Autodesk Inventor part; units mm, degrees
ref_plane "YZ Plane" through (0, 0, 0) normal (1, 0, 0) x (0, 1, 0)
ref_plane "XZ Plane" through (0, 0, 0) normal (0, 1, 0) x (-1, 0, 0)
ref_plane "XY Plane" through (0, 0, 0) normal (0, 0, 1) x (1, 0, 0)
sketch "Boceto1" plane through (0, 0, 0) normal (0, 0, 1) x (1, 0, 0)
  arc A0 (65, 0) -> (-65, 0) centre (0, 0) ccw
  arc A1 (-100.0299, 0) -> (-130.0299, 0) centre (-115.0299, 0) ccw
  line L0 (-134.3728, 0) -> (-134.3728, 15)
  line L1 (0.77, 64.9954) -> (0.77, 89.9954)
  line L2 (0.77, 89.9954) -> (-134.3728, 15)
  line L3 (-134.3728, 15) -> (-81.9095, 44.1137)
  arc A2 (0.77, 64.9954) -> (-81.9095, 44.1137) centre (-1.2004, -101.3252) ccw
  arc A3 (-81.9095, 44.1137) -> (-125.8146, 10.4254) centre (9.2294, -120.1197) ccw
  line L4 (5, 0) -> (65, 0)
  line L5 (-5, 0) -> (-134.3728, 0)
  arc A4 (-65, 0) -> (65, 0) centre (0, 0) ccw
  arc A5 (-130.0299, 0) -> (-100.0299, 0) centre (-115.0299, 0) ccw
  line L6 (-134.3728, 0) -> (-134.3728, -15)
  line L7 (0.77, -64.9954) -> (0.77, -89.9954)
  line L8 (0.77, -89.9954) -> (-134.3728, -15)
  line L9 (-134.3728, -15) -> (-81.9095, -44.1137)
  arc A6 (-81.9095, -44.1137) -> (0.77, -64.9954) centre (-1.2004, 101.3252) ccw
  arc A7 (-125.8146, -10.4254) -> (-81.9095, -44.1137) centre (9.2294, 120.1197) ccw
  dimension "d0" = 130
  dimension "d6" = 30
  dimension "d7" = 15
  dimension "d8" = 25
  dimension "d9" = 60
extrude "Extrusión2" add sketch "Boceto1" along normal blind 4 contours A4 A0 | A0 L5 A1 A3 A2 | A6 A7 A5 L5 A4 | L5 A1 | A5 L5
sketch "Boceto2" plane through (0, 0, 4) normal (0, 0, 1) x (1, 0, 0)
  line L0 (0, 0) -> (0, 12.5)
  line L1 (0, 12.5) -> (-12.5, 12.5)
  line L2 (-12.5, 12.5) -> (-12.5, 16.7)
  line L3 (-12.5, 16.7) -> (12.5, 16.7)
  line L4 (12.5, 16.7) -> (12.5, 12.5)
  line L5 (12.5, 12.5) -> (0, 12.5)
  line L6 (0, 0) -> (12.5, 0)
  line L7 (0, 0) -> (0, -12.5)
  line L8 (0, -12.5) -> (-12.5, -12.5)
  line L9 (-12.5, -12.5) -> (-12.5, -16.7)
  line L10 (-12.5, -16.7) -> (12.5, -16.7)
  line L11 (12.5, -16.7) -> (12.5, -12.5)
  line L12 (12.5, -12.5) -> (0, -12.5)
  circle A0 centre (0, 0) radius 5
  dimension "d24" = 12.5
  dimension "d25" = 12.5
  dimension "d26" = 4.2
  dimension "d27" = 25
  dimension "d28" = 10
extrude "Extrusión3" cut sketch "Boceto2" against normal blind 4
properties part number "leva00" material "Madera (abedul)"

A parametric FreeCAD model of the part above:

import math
import FreeCAD as App
import Part
import Sketcher

V = App.Vector
Q = App.Units.Quantity

doc = App.newDocument("Part")
body = doc.addObject("PartDesign::Body", "Body")

# Sketch on XY plane
sketch1 = doc.addObject("Sketcher::SketchObject", "Sketch")
body.addObject(sketch1)
sketch1.AttachmentSupport = (doc.XY_Plane, [""])
sketch1.MapMode = "FlatFace"
sketch1.addGeometry(Part.ArcOfCircle(Part.Circle(V(0, 0, 0), V(0, 0, 1), 65), math.radians(-89.321249), math.radians(89.321249)), False)
sketch1.addGeometry(Part.ArcOfCircle(Part.Circle(V(-1.2004, -101.3252, 0), V(0, 0, 1), 166.332271), math.radians(89.321249), math.radians(119.027417)), False)
sketch1.addGeometry(Part.ArcOfCircle(Part.Circle(V(9.2294, -120.1197, 0), V(0, 0, 1), 187.826805), math.radians(119.027438), math.radians(135.970459)), False)
sketch1.addGeometry(Part.ArcOfCircle(Part.Circle(V(-115.0299, 0, 0), V(0, 0, 1), 15), math.radians(135.9705), math.radians(224.0295)), False)
sketch1.addGeometry(Part.ArcOfCircle(Part.Circle(V(9.2294, 120.1197, 0), V(0, 0, 1), 187.826795), math.radians(-135.970459), math.radians(-119.027438)), False)
sketch1.addGeometry(Part.ArcOfCircle(Part.Circle(V(-1.2004, 101.3252, 0), V(0, 0, 1), 166.332295), math.radians(-119.027417), math.radians(-89.321249)), False)
sketch1.addConstraint(Sketcher.Constraint("Tangent", 0, 2, 1, 1))
sketch1.addConstraint(Sketcher.Constraint("Tangent", 1, 2, 2, 1))
sketch1.addConstraint(Sketcher.Constraint("Tangent", 2, 2, 3, 1))
sketch1.addConstraint(Sketcher.Constraint("Tangent", 3, 2, 4, 1))
sketch1.addConstraint(Sketcher.Constraint("Tangent", 4, 2, 5, 1))
sketch1.addConstraint(Sketcher.Constraint("Tangent", 5, 2, 0, 1))
sketch1.addConstraint(Sketcher.Constraint("Coincident", 0, 3, -1, 1))
sketch1.addConstraint(Sketcher.Constraint("Equal", 2, 4))
sketch1.addConstraint(Sketcher.Constraint("Equal", 1, 5))
sketch1.addConstraint(Sketcher.Constraint("Symmetric", 2, 3, 4, 3, -1))
sketch1.addConstraint(Sketcher.Constraint("Radius", 0, Q("65 mm")))
sketch1.addConstraint(Sketcher.Constraint("Radius", 3, Q("15 mm")))
sketch1.addConstraint(Sketcher.Constraint("Radius", 1, Q("166.3323 mm")))
sketch1.addConstraint(Sketcher.Constraint("Radius", 2, Q("187.8268 mm")))
sketch1.addConstraint(Sketcher.Constraint("DistanceX", 3, 3, 0, 2, Q("115.8 mm")))
sketch1.addConstraint(Sketcher.Constraint("DistanceX", 3, 3, -1, 1, Q("115.03 mm")))
pad1 = doc.addObject("PartDesign::Pad", "Pad")
body.addObject(pad1)
pad1.Profile = sketch1
pad1.Length = 4

# Sketch on XY plane
sketch2 = doc.addObject("Sketcher::SketchObject", "Sketch001")
body.addObject(sketch2)
sketch2.AttachmentSupport = (doc.XY_Plane, [""])
sketch2.MapMode = "FlatFace"
sketch2.AttachmentOffset = App.Placement(V(0, 0, 4), App.Rotation())
sketch2.addGeometry(Part.Circle(V(0, 0, 0), V(0, 0, 1), 5), False)
sketch2.addGeometry(Part.LineSegment(V(-12.5, 12.5, 0), V(12.5, 12.5, 0)), False)
sketch2.addGeometry(Part.LineSegment(V(12.5, 12.5, 0), V(12.5, 16.7, 0)), False)
sketch2.addGeometry(Part.LineSegment(V(12.5, 16.7, 0), V(-12.5, 16.7, 0)), False)
sketch2.addGeometry(Part.LineSegment(V(-12.5, 16.7, 0), V(-12.5, 12.5, 0)), False)
sketch2.addGeometry(Part.LineSegment(V(12.5, -12.5, 0), V(-12.5, -12.5, 0)), False)
sketch2.addGeometry(Part.LineSegment(V(-12.5, -12.5, 0), V(-12.5, -16.7, 0)), False)
sketch2.addGeometry(Part.LineSegment(V(-12.5, -16.7, 0), V(12.5, -16.7, 0)), False)
sketch2.addGeometry(Part.LineSegment(V(12.5, -16.7, 0), V(12.5, -12.5, 0)), False)
sketch2.addConstraint(Sketcher.Constraint("Coincident", 1, 2, 2, 1))
sketch2.addConstraint(Sketcher.Constraint("Coincident", 2, 2, 3, 1))
sketch2.addConstraint(Sketcher.Constraint("Coincident", 3, 2, 4, 1))
sketch2.addConstraint(Sketcher.Constraint("Coincident", 4, 2, 1, 1))
sketch2.addConstraint(Sketcher.Constraint("Coincident", 5, 2, 6, 1))
sketch2.addConstraint(Sketcher.Constraint("Coincident", 6, 2, 7, 1))
sketch2.addConstraint(Sketcher.Constraint("Coincident", 7, 2, 8, 1))
sketch2.addConstraint(Sketcher.Constraint("Coincident", 8, 2, 5, 1))
sketch2.addConstraint(Sketcher.Constraint("Horizontal", 1))
sketch2.addConstraint(Sketcher.Constraint("Vertical", 2))
sketch2.addConstraint(Sketcher.Constraint("Horizontal", 3))
sketch2.addConstraint(Sketcher.Constraint("Vertical", 4))
sketch2.addConstraint(Sketcher.Constraint("Horizontal", 5))
sketch2.addConstraint(Sketcher.Constraint("Vertical", 6))
sketch2.addConstraint(Sketcher.Constraint("Horizontal", 7))
sketch2.addConstraint(Sketcher.Constraint("Vertical", 8))
sketch2.addConstraint(Sketcher.Constraint("Coincident", 0, 3, -1, 1))
sketch2.addConstraint(Sketcher.Constraint("Symmetric", 1, 2, 5, 2, -1, 1))
sketch2.addConstraint(Sketcher.Constraint("Symmetric", 3, 2, 7, 2, -1, 1))
sketch2.addConstraint(Sketcher.Constraint("Vertical", 4, 2, 5, 2))
sketch2.addConstraint(Sketcher.Constraint("Diameter", 0, Q("10 mm")))
sketch2.addConstraint(Sketcher.Constraint("DistanceX", 1, 1, 1, 2, Q("25 mm")))
sketch2.addConstraint(Sketcher.Constraint("DistanceY", 2, 1, 2, 2, Q("4.2 mm")))
sketch2.addConstraint(Sketcher.Constraint("DistanceY", 5, 2, 4, 2, Q("25 mm")))
pocket1 = doc.addObject("PartDesign::Pocket", "Pocket")
body.addObject(pocket1)
pocket1.Profile = sketch2
pocket1.Length = 4

doc.recompute()
